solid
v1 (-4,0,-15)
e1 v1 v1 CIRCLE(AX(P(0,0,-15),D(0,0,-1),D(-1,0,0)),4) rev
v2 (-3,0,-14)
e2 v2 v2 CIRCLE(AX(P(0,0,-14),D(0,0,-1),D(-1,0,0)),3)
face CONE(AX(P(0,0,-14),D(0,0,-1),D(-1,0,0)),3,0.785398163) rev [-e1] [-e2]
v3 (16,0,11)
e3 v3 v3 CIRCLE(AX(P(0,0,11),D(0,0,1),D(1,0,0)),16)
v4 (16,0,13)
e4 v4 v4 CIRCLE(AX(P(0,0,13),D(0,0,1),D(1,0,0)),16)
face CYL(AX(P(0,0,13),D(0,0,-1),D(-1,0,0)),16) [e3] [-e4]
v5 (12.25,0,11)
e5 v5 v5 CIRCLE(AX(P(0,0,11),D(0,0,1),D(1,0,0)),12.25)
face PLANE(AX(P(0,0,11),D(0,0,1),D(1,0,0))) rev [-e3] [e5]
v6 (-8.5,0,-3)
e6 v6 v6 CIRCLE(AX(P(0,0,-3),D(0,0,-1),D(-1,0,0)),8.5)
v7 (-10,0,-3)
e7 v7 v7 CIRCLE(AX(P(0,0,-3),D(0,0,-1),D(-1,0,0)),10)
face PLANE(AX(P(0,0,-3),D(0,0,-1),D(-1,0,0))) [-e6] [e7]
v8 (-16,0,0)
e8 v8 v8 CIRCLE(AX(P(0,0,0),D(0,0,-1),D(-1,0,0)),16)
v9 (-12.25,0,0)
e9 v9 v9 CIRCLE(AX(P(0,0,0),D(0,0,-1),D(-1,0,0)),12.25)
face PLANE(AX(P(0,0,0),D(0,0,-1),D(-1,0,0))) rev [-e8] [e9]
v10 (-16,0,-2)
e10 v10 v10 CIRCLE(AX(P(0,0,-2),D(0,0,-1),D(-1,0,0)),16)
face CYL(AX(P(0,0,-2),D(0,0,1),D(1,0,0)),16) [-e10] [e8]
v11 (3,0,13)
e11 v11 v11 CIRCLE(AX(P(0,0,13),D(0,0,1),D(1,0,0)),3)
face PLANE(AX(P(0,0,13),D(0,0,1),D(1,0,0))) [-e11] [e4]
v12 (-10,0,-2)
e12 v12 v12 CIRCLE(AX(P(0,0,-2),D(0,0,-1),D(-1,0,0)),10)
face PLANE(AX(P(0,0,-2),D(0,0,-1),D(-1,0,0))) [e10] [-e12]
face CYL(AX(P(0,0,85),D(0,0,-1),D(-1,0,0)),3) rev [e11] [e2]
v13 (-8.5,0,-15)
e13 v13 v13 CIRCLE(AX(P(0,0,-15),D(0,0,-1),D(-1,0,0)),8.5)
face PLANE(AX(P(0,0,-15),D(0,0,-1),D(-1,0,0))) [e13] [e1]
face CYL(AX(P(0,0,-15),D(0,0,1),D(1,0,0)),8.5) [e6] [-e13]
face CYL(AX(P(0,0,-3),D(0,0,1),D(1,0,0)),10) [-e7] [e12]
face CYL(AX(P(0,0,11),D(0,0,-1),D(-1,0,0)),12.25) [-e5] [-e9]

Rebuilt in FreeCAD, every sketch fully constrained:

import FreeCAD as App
import Part
import Sketcher

V = App.Vector


def edges_at(feature, points):
    """Names of the edges that pass closest to the given points."""
    edges = feature.Shape.Edges
    near = lambda p: min(range(len(edges)), key=lambda i: edges[i].distToShape(Part.Vertex(*p))[0])
    return sorted({f"Edge{near(p) + 1}" for p in points})

doc = App.newDocument("Part")
body = doc.addObject("PartDesign::Body", "Body")

# Sketch on XY plane
sketch1 = doc.addObject("Sketcher::SketchObject", "Sketch")
body.addObject(sketch1)
sketch1.AttachmentSupport = (doc.XY_Plane, [""])
sketch1.MapMode = "FlatFace"
sketch1.addGeometry(Part.Circle(V(0, 0, 0), V(0, 0, 1), 12), False)
sketch1.addConstraint([
    Sketcher.Constraint("Coincident", 0, 3, -1, 1),
    Sketcher.Constraint("Diameter", 0, 24.5),
])
pad1 = doc.addObject("PartDesign::Pad", "Pad")
body.addObject(pad1)
pad1.Profile = sketch1
pad1.Length = 11

# Sketch on XY plane
sketch2 = doc.addObject("Sketcher::SketchObject", "Sketch001")
body.addObject(sketch2)
sketch2.AttachmentSupport = (doc.XY_Plane, [""])
sketch2.MapMode = "FlatFace"
sketch2.addGeometry(Part.Circle(V(0, 0, 0), V(0, 0, 1), 16), False)
sketch2.addConstraint([
    Sketcher.Constraint("Coincident", 0, 3, -1, 1),
    Sketcher.Constraint("Diameter", 0, 32.0),
])
pad2 = doc.addObject("PartDesign::Pad", "Pad001")
body.addObject(pad2)
pad2.Profile = sketch2
pad2.Length = 2
pad2.Reversed = True

# Sketch on XY plane
sketch3 = doc.addObject("Sketcher::SketchObject", "Sketch002")
body.addObject(sketch3)
sketch3.AttachmentSupport = (doc.XY_Plane, [""])
sketch3.MapMode = "FlatFace"
sketch3.AttachmentOffset = App.Placement(V(0, 0, -2), App.Rotation())
sketch3.addGeometry(Part.Circle(V(0, 0, 0), V(0, 0, 1), 10), False)
sketch3.addConstraint([
    Sketcher.Constraint("Coincident", 0, 3, -1, 1),
    Sketcher.Constraint("Diameter", 0, 20.0),
])
pad3 = doc.addObject("PartDesign::Pad", "Pad002")
body.addObject(pad3)
pad3.Profile = sketch3
pad3.Length = 1
pad3.Reversed = True

# Sketch on XY plane
sketch4 = doc.addObject("Sketcher::SketchObject", "Sketch003")
body.addObject(sketch4)
sketch4.AttachmentSupport = (doc.XY_Plane, [""])
sketch4.MapMode = "FlatFace"
sketch4.AttachmentOffset = App.Placement(V(0, 0, -3), App.Rotation())
sketch4.addGeometry(Part.Circle(V(0, 0, 0), V(0, 0, 1), 8), False)
sketch4.addConstraint([
    Sketcher.Constraint("Coincident", 0, 3, -1, 1),
    Sketcher.Constraint("Diameter", 0, 17.0),
])
pad4 = doc.addObject("PartDesign::Pad", "Pad003")
body.addObject(pad4)
pad4.Profile = sketch4
pad4.Length = 12
pad4.Reversed = True

# Sketch on XY plane
sketch5 = doc.addObject("Sketcher::SketchObject", "Sketch004")
body.addObject(sketch5)
sketch5.AttachmentSupport = (doc.XY_Plane, [""])
sketch5.MapMode = "FlatFace"
sketch5.AttachmentOffset = App.Placement(V(0, 0, -15), App.Rotation())
sketch5.addGeometry(Part.Circle(V(0, 0, 0), V(0, 0, 1), 3), False)
sketch5.addConstraint([
    Sketcher.Constraint("Coincident", 0, 3, -1, 1),
    Sketcher.Constraint("Diameter", 0, 6.0),
])
pocket1 = doc.addObject("PartDesign::Pocket", "Pocket")
body.addObject(pocket1)
pocket1.Profile = sketch5
pocket1.Length = 100
pocket1.Reversed = True
doc.recompute()

chamfer = doc.addObject("PartDesign::Chamfer", "Chamfer")
body.addObject(chamfer)
chamfer.Base = (pocket1, edges_at(pocket1, [(3, 0, -15)]))
chamfer.Size = 1

# Sketch on XY plane
sketch6 = doc.addObject("Sketcher::SketchObject", "Sketch005")
body.addObject(sketch6)
sketch6.AttachmentSupport = (doc.XY_Plane, [""])
sketch6.MapMode = "FlatFace"
sketch6.AttachmentOffset = App.Placement(V(0, 0, 13), App.Rotation())
sketch6.addGeometry(Part.Circle(V(0, 0, 0), V(0, 0, 1), 16), False)
sketch6.addConstraint([
    Sketcher.Constraint("Coincident", 0, 3, -1, 1),
    Sketcher.Constraint("Diameter", 0, 32.0),
])
pad5 = doc.addObject("PartDesign::Pad", "Pad004")
body.addObject(pad5)
pad5.Profile = sketch6
pad5.Length = 2
pad5.Reversed = True

# Sketch on XY plane
sketch7 = doc.addObject("Sketcher::SketchObject", "Sketch006")
body.addObject(sketch7)
sketch7.AttachmentSupport = (doc.XY_Plane, [""])
sketch7.MapMode = "FlatFace"
sketch7.AttachmentOffset = App.Placement(V(0, 0, 3), App.Rotation())
sketch7.addGeometry(Part.Circle(V(0, 0, 0), V(0, 0, 1), 3), False)
sketch7.addConstraint([
    Sketcher.Constraint("Coincident", 0, 3, -1, 1),
    Sketcher.Constraint("Diameter", 0, 6.0),
])
pocket2 = doc.addObject("PartDesign::Pocket", "Pocket001")
body.addObject(pocket2)
pocket2.Profile = sketch7
pocket2.Length = 10
pocket2.Reversed = True

doc.recompute()
